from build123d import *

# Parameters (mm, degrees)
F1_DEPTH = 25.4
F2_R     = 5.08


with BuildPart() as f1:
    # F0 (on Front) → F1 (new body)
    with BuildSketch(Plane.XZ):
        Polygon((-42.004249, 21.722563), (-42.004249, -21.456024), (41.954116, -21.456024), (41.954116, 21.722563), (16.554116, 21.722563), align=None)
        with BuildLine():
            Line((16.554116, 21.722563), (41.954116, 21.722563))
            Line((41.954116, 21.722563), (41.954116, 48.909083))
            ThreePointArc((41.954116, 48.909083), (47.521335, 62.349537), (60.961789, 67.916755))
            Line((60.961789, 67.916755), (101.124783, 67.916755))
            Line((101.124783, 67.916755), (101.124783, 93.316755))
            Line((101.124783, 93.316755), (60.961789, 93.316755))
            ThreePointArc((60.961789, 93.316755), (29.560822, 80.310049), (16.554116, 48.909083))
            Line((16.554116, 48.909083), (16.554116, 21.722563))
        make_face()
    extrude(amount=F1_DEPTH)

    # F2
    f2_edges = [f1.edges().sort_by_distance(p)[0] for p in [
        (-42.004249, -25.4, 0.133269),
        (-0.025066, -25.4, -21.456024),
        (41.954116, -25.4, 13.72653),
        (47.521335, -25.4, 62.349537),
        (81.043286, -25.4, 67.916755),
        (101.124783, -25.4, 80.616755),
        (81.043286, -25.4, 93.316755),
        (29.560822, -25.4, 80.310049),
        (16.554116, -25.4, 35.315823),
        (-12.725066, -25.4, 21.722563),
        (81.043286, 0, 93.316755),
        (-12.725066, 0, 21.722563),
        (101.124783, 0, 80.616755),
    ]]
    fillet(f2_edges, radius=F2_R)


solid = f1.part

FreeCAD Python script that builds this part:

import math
import FreeCAD as App
import Part
import Sketcher

V = App.Vector
Q = App.Units.Quantity


def edges_at(feature, points):
    """Names of the edges that pass closest to the given points."""
    edges = feature.Shape.Edges
    near = lambda p: min(range(len(edges)), key=lambda i: edges[i].distToShape(Part.Vertex(*p))[0])
    return sorted({f"Edge{near(p) + 1}" for p in points})

doc = App.newDocument("Part")
params = doc.addObject("Spreadsheet::Sheet", "Params")
for row, (alias, value) in enumerate([
    ("sketch1_height", "1 in"),
    ("pad1_length", "1 in"),
    ("fillet_radius", "0.2 in"),
], start=1):
    params.set(f"A{row}", alias)
    params.set(f"B{row}", "=" + value)
    params.setAlias(f"B{row}", alias)

body = doc.addObject("PartDesign::Body", "Body")

# Sketch on XZ plane
sketch1 = body.newObject("Sketcher::SketchObject", "Sketch")
sketch1.AttachmentSupport = (doc.getObject("XZ_Plane"), [""])
sketch1.MapMode = "FlatFace"
sketch1.addGeometry(Part.LineSegment(V(-42.004249, 21.722563, 0), V(-42.004249, -21.456024, 0)), False)
sketch1.addGeometry(Part.LineSegment(V(-42.004249, -21.456024, 0), V(41.954116, -21.456024, 0)), False)
sketch1.addGeometry(Part.LineSegment(V(41.954116, -21.456024, 0), V(41.954116, 48.909083, 0)), False)
sketch1.addGeometry(Part.ArcOfCircle(Part.Circle(V(60.961789, 48.909082, 0), V(0, 0, 1), 19.007673), math.radians(90), math.radians(179.999997)), False)
sketch1.addGeometry(Part.LineSegment(V(60.961789, 67.916755, 0), V(101.124783, 67.916755, 0)), False)
sketch1.addGeometry(Part.LineSegment(V(101.124783, 67.916755, 0), V(101.124783, 93.316755, 0)), False)
sketch1.addGeometry(Part.LineSegment(V(101.124783, 93.316755, 0), V(60.961789, 93.316755, 0)), False)
sketch1.addGeometry(Part.ArcOfCircle(Part.Circle(V(60.961788, 48.909083, 0), V(0, 0, 1), 44.407672), math.radians(89.999999), math.radians(180)), False)
sketch1.addGeometry(Part.LineSegment(V(16.554116, 48.909083, 0), V(16.554116, 21.722563, 0)), False)
sketch1.addGeometry(Part.LineSegment(V(16.554116, 21.722563, 0), V(-42.004249, 21.722563, 0)), False)
sketch1.addConstraint(Sketcher.Constraint("Coincident", 0, 2, 1, 1))
sketch1.addConstraint(Sketcher.Constraint("Coincident", 1, 2, 2, 1))
sketch1.addConstraint(Sketcher.Constraint("Tangent", 2, 2, 3, 2))
sketch1.addConstraint(Sketcher.Constraint("Tangent", 3, 1, 4, 1))
sketch1.addConstraint(Sketcher.Constraint("Coincident", 4, 2, 5, 1))
sketch1.addConstraint(Sketcher.Constraint("Coincident", 5, 2, 6, 1))
sketch1.addConstraint(Sketcher.Constraint("Tangent", 6, 2, 7, 1))
sketch1.addConstraint(Sketcher.Constraint("Tangent", 7, 2, 8, 1))
sketch1.addConstraint(Sketcher.Constraint("Coincident", 8, 2, 9, 1))
sketch1.addConstraint(Sketcher.Constraint("Coincident", 9, 2, 0, 1))
sketch1.addConstraint(Sketcher.Constraint("Vertical", 0))
sketch1.addConstraint(Sketcher.Constraint("Horizontal", 1))
sketch1.addConstraint(Sketcher.Constraint("Vertical", 2))
sketch1.addConstraint(Sketcher.Constraint("Horizontal", 4))
sketch1.addConstraint(Sketcher.Constraint("Vertical", 5))
sketch1.addConstraint(Sketcher.Constraint("Horizontal", 6))
sketch1.addConstraint(Sketcher.Constraint("Vertical", 8))
sketch1.addConstraint(Sketcher.Constraint("Horizontal", 9))
sketch1.addConstraint(Sketcher.Constraint("Coincident", 7, 3, 3, 3))
sketch1.addConstraint(Sketcher.Constraint("DistanceY", 5, 1, 5, 2, Q("1 in")))
sketch1.addConstraint(Sketcher.Constraint("Radius", 3, 19.007673))
sketch1.addConstraint(Sketcher.Constraint("DistanceY", 8, 2, 8, 1, 27.18652))
sketch1.addConstraint(Sketcher.Constraint("DistanceX", 1, 1, 1, 2, 83.958365))
sketch1.addConstraint(Sketcher.Constraint("DistanceX", 4, 1, 4, 2, 40.162994))
sketch1.addConstraint(Sketcher.Constraint("DistanceY", 0, 2, 0, 1, 43.178587))
sketch1.addConstraint(Sketcher.Constraint("DistanceX", -1, 1, 3, 3, 60.961789))
sketch1.addConstraint(Sketcher.Constraint("DistanceY", -1, 1, 3, 3, 48.909082))
sketch1.setExpression("Constraints[19]", "Params.sketch1_height")
pad1 = body.newObject("PartDesign::Pad", "Pad")
pad1.Profile = sketch1
pad1.setExpression("Length", "Params.pad1_length")
doc.recompute()

fillet = body.newObject("PartDesign::Fillet", "Fillet")
fillet.Base = (pad1, edges_at(pad1, [
    (-42.004, -25.4, 0.133),
    (-0.025, -25.4, -21.456),
    (41.954, -25.4, 13.727),
    (47.521, -25.4, 62.35),
    (81.043, -25.4, 67.917),
    (101.125, -25.4, 80.617),
    (81.043, -25.4, 93.317),
    (29.561, -25.4, 80.31),
    (16.554, -25.4, 35.316),
    (-12.725, -25.4, 21.723),
    (81.043, 0, 93.317),
    (-12.725, 0, 21.723),
    (101.125, 0, 80.617),
]))
fillet.setExpression("Radius", "Params.fillet_radius")

doc.recompute()
